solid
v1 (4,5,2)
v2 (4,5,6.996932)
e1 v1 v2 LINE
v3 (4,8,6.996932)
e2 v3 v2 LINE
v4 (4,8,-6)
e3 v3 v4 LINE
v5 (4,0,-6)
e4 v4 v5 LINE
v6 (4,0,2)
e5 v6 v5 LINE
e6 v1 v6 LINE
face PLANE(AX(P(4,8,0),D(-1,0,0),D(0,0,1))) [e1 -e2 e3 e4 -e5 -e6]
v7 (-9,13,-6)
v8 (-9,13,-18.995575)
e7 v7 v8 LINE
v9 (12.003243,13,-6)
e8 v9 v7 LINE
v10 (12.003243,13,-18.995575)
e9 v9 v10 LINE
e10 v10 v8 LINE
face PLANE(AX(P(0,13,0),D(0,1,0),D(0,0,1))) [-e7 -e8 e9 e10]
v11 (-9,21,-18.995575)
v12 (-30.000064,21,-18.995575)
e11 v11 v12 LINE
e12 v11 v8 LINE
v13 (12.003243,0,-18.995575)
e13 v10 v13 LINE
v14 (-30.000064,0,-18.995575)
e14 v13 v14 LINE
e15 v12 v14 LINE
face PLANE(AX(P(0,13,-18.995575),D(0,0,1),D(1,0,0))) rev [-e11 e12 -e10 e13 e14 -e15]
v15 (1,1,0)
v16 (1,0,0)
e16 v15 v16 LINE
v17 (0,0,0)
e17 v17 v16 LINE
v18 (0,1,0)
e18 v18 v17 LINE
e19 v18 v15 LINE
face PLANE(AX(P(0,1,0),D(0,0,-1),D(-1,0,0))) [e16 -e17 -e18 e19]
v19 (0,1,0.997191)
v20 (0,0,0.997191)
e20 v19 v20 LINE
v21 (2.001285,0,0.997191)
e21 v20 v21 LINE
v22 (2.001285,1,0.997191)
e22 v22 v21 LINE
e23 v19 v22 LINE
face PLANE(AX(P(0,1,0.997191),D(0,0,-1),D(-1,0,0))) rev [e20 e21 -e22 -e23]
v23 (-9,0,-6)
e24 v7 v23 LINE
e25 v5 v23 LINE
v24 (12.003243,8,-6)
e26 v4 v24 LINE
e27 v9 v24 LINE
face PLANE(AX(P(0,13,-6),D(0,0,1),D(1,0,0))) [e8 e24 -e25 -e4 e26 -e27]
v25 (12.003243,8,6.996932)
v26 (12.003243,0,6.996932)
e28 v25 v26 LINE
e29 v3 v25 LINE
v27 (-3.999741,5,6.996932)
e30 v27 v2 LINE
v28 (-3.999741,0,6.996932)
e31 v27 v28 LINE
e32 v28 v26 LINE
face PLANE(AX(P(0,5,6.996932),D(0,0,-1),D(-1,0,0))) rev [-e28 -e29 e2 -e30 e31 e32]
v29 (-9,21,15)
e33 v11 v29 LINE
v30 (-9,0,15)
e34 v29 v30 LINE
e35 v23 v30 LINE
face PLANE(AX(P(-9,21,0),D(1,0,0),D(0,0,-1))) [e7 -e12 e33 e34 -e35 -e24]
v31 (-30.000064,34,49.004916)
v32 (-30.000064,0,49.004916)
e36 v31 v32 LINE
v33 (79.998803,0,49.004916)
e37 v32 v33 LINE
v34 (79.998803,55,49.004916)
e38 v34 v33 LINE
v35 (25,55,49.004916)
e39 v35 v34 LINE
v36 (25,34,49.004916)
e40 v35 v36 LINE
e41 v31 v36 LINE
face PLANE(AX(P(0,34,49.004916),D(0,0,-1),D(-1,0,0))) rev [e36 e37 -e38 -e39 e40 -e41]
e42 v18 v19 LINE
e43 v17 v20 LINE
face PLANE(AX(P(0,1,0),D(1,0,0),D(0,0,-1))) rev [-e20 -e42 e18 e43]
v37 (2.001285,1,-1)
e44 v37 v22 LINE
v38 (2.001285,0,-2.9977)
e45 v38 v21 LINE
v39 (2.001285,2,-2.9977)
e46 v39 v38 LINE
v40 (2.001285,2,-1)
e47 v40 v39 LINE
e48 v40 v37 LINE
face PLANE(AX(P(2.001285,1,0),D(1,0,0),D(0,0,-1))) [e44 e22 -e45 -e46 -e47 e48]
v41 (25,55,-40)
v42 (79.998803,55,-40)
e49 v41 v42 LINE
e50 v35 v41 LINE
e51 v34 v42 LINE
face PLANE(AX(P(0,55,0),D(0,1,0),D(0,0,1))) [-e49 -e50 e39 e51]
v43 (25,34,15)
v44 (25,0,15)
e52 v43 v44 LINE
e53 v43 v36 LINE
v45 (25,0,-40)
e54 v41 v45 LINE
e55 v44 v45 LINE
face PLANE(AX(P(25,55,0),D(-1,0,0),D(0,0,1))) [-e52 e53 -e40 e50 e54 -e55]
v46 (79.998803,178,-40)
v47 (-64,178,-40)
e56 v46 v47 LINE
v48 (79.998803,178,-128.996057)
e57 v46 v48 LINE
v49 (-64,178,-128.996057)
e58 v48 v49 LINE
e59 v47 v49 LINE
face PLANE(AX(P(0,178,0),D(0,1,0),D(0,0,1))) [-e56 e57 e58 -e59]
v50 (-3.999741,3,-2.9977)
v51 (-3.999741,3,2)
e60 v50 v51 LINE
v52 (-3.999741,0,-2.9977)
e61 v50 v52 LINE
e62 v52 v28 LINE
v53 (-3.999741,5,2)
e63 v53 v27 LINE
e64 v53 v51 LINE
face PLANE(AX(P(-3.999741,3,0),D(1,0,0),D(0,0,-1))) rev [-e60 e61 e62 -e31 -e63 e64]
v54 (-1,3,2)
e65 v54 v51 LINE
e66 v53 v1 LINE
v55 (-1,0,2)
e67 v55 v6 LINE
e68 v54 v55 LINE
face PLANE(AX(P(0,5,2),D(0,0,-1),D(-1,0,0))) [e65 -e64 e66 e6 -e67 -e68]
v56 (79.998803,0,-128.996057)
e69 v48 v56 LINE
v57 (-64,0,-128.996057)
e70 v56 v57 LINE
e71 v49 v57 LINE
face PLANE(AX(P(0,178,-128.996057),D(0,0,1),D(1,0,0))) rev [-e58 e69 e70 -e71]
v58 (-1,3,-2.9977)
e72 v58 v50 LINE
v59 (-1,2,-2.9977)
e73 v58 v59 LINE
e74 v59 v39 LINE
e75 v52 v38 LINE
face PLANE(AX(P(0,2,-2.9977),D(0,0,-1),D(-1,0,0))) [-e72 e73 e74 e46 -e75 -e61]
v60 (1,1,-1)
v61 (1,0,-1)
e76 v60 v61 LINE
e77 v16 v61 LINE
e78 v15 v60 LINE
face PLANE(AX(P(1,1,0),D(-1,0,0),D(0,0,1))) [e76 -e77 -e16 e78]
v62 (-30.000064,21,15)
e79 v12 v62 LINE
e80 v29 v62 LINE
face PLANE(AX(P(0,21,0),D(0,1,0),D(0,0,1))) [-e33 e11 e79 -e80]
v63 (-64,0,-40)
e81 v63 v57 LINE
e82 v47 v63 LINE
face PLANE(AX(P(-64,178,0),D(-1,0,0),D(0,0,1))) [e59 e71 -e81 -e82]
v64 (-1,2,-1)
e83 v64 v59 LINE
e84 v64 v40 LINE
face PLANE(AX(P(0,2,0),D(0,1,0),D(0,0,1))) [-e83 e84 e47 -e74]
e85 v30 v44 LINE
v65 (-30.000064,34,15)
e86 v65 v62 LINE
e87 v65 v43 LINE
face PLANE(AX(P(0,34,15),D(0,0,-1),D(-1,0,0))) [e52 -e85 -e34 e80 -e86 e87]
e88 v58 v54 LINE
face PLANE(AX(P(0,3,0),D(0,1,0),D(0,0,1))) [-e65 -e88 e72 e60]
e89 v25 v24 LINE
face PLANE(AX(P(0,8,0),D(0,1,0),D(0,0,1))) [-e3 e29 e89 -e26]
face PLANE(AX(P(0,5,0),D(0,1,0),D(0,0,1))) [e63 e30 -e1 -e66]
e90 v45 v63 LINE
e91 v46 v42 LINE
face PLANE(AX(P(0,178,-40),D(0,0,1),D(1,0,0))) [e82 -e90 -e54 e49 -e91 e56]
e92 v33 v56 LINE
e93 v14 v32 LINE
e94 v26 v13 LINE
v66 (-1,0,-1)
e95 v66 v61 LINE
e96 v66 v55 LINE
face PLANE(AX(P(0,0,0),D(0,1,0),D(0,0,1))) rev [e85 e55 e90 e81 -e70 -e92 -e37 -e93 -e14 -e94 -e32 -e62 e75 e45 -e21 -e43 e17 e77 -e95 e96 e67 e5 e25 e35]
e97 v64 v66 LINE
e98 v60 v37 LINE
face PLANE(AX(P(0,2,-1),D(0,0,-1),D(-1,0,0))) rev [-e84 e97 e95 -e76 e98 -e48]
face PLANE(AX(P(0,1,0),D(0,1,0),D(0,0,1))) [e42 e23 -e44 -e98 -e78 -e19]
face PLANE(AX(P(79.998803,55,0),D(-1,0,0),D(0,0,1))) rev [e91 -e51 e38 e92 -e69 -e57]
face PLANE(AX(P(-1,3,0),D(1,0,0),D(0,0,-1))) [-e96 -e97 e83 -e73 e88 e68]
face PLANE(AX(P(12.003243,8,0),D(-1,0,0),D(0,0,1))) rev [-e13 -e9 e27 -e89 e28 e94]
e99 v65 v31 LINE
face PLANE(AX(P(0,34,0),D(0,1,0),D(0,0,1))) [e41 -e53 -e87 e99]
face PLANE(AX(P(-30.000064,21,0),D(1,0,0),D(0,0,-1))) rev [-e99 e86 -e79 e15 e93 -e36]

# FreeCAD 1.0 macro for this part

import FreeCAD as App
import Part
import Sketcher

V = App.Vector


def add_polygon(sketch, points):
    """Adds a closed chain of lines whose ends are joined by coincident constraints."""
    first, n = sketch.GeometryCount, len(points)
    for a, b in zip(points, points[1:] + points[:1]):
        sketch.addGeometry(Part.LineSegment(App.Vector(*a, 0), App.Vector(*b, 0)), False)
    for i in range(n):
        sketch.addConstraint(Sketcher.Constraint("Coincident", first + i, 2, first + (i + 1) % n, 1))

doc = App.newDocument("Part")
body = doc.addObject("PartDesign::Body", "Body")

sketch1 = body.newObject("Sketcher::SketchObject", "Sketch")
sketch1.AttachmentSupport = (doc.getObject("XZ_Plane"), [""])
sketch1.MapMode = "FlatFace"
add_polygon(sketch1, [(1, 0), (0, 0), (0, 1), (2, 1), (2, -1), (1, -1)])
sketch1.addConstraint(Sketcher.Constraint("Horizontal", 0))
sketch1.addConstraint(Sketcher.Constraint("Vertical", 1))
sketch1.addConstraint(Sketcher.Constraint("Horizontal", 2))
sketch1.addConstraint(Sketcher.Constraint("Vertical", 3))
sketch1.addConstraint(Sketcher.Constraint("Horizontal", 4))
sketch1.addConstraint(Sketcher.Constraint("Vertical", 5))
sketch1.addConstraint(Sketcher.Constraint("Coincident", 0, 2, -1, 1))
sketch1.addConstraint(Sketcher.Constraint("Equal", 0, 5))
sketch1.addConstraint(Sketcher.Constraint("DistanceX", 0, 2, 0, 1, 1.0))
sketch1.addConstraint(Sketcher.Constraint("DistanceY", 1, 1, 1, 2, 0.997191))
sketch1.addConstraint(Sketcher.Constraint("DistanceX", 2, 1, 2, 2, 2.001285))
pad1 = body.newObject("PartDesign::Pad", "Pad")
pad1.Profile = sketch1
pad1.Length = 1
pad1.Reversed = True

sketch2 = body.newObject("Sketcher::SketchObject", "Sketch001")
sketch2.AttachmentSupport = (doc.getObject("XZ_Plane"), [""])
sketch2.MapMode = "FlatFace"
add_polygon(sketch2, [(2, -1), (2, -3), (-1, -3), (-1, -1)])
sketch2.addConstraint(Sketcher.Constraint("Vertical", 0))
sketch2.addConstraint(Sketcher.Constraint("Horizontal", 1))
sketch2.addConstraint(Sketcher.Constraint("Vertical", 2))
sketch2.addConstraint(Sketcher.Constraint("Horizontal", 3))
sketch2.addConstraint(Sketcher.Constraint("DistanceX", 1, 2, -1, 1, 1.0))
sketch2.addConstraint(Sketcher.Constraint("DistanceY", 2, 2, -1, 1, 1.0))
sketch2.addConstraint(Sketcher.Constraint("DistanceY", 0, 2, 0, 1, 1.9977))
sketch2.addConstraint(Sketcher.Constraint("DistanceX", 1, 2, 1, 1, 3.001285))
pad2 = body.newObject("PartDesign::Pad", "Pad001")
pad2.Profile = sketch2
pad2.Length = 2
pad2.Reversed = True

sketch3 = body.newObject("Sketcher::SketchObject", "Sketch002")
sketch3.AttachmentSupport = (doc.getObject("XZ_Plane"), [""])
sketch3.MapMode = "FlatFace"
add_polygon(sketch3, [(-1, -3), (-4, -3), (-4, 2), (-1, 2)])
sketch3.addConstraint(Sketcher.Constraint("Horizontal", 0))
sketch3.addConstraint(Sketcher.Constraint("Vertical", 1))
sketch3.addConstraint(Sketcher.Constraint("Horizontal", 2))
sketch3.addConstraint(Sketcher.Constraint("Vertical", 3))
sketch3.addConstraint(Sketcher.Constraint("DistanceY", -1, 1, 1, 2, 2.0))
sketch3.addConstraint(Sketcher.Constraint("DistanceX", 2, 2, -1, 1, 1.0))
sketch3.addConstraint(Sketcher.Constraint("DistanceY", 1, 1, 1, 2, 4.9977))
sketch3.addConstraint(Sketcher.Constraint("DistanceX", 0, 2, 0, 1, 2.999741))
pad3 = body.newObject("PartDesign::Pad", "Pad002")
pad3.Profile = sketch3
pad3.Length = 3
pad3.Reversed = True

sketch4 = body.newObject("Sketcher::SketchObject", "Sketch003")
sketch4.AttachmentSupport = (doc.getObject("XZ_Plane"), [""])
sketch4.MapMode = "FlatFace"
add_polygon(sketch4, [(4, 7), (4, 2), (-4, 2), (-4, 7)])
sketch4.addConstraint(Sketcher.Constraint("Vertical", 0))
sketch4.addConstraint(Sketcher.Constraint("Horizontal", 1))
sketch4.addConstraint(Sketcher.Constraint("Vertical", 2))
sketch4.addConstraint(Sketcher.Constraint("Horizontal", 3))
sketch4.addConstraint(Sketcher.Constraint("DistanceX", -1, 1, 0, 2, 4.0))
sketch4.addConstraint(Sketcher.Constraint("DistanceY", -1, 1, 0, 2, 2.0))
sketch4.addConstraint(Sketcher.Constraint("DistanceX", 1, 2, 1, 1, 7.999741))
sketch4.addConstraint(Sketcher.Constraint("DistanceY", 0, 2, 0, 1, 4.996932))
pad4 = body.newObject("PartDesign::Pad", "Pad003")
pad4.Profile = sketch4
pad4.Length = 5
pad4.Reversed = True

sketch5 = body.newObject("Sketcher::SketchObject", "Sketch004")
sketch5.AttachmentSupport = (doc.getObject("XZ_Plane"), [""])
sketch5.MapMode = "FlatFace"
add_polygon(sketch5, [(4, 7), (12, 7), (12, -6), (4, -6)])
sketch5.addConstraint(Sketcher.Constraint("Horizontal", 0))
sketch5.addConstraint(Sketcher.Constraint("Vertical", 1))
sketch5.addConstraint(Sketcher.Constraint("Horizontal", 2))
sketch5.addConstraint(Sketcher.Constraint("Vertical", 3))
sketch5.addConstraint(Sketcher.Constraint("DistanceY", 1, 2, -1, 1, 6.0))
sketch5.addConstraint(Sketcher.Constraint("DistanceX", -1, 1, 2, 2, 4.0))
sketch5.addConstraint(Sketcher.Constraint("DistanceX", 0, 1, 0, 2, 8.003243))
sketch5.addConstraint(Sketcher.Constraint("DistanceY", 1, 2, 1, 1, 12.996932))
pad5 = body.newObject("PartDesign::Pad", "Pad004")
pad5.Profile = sketch5
pad5.Length = 8
pad5.Reversed = True

sketch6 = body.newObject("Sketcher::SketchObject", "Sketch005")
sketch6.AttachmentSupport = (doc.getObject("XZ_Plane"), [""])
sketch6.MapMode = "FlatFace"
add_polygon(sketch6, [(-9, -19), (-9, -6), (12, -6), (12, -19)])
sketch6.addConstraint(Sketcher.Constraint("Vertical", 0))
sketch6.addConstraint(Sketcher.Constraint("Horizontal", 1))
sketch6.addConstraint(Sketcher.Constraint("Vertical", 2))
sketch6.addConstraint(Sketcher.Constraint("Horizontal", 3))
sketch6.addConstraint(Sketcher.Constraint("DistanceX", 0, 2, -1, 1, 9.0))
sketch6.addConstraint(Sketcher.Constraint("DistanceY", 0, 2, -1, 1, 6.0))
sketch6.addConstraint(Sketcher.Constraint("DistanceX", 1, 1, 1, 2, 21.003243))
sketch6.addConstraint(Sketcher.Constraint("DistanceY", 0, 1, 0, 2, 12.995575))
pad6 = body.newObject("PartDesign::Pad", "Pad005")
pad6.Profile = sketch6
pad6.Length = 13
pad6.Reversed = True

sketch7 = body.newObject("Sketcher::SketchObject", "Sketch006")
sketch7.AttachmentSupport = (doc.getObject("XZ_Plane"), [""])
sketch7.MapMode = "FlatFace"
add_polygon(sketch7, [(-9, -19), (-30, -19), (-30, 15), (-9, 15)])
sketch7.addConstraint(Sketcher.Constraint("Horizontal", 0))
sketch7.addConstraint(Sketcher.Constraint("Vertical", 1))
sketch7.addConstraint(Sketcher.Constraint("Horizontal", 2))
sketch7.addConstraint(Sketcher.Constraint("Vertical", 3))
sketch7.addConstraint(Sketcher.Constraint("DistanceY", -1, 1, 1, 2, 15.0))
sketch7.addConstraint(Sketcher.Constraint("DistanceX", 2, 2, -1, 1, 9.0))
sketch7.addConstraint(Sketcher.Constraint("DistanceX", 0, 2, 0, 1, 21.000064))
sketch7.addConstraint(Sketcher.Constraint("DistanceY", 1, 1, 1, 2, 33.995575))
pad7 = body.newObject("PartDesign::Pad", "Pad006")
pad7.Profile = sketch7
pad7.Length = 21
pad7.Reversed = True

sketch8 = body.newObject("Sketcher::SketchObject", "Sketch007")
sketch8.AttachmentSupport = (doc.getObject("XZ_Plane"), [""])
sketch8.MapMode = "FlatFace"
add_polygon(sketch8, [(25, 49), (25, 15), (-30, 15), (-30, 49)])
sketch8.addConstraint(Sketcher.Constraint("Vertical", 0))
sketch8.addConstraint(Sketcher.Constraint("Horizontal", 1))
sketch8.addConstraint(Sketcher.Constraint("Vertical", 2))
sketch8.addConstraint(Sketcher.Constraint("Horizontal", 3))
sketch8.addConstraint(Sketcher.Constraint("DistanceX", -1, 1, 0, 2, 25.0))
sketch8.addConstraint(Sketcher.Constraint("DistanceY", -1, 1, 0, 2, 15.0))
sketch8.addConstraint(Sketcher.Constraint("DistanceX", 1, 2, 1, 1, 55.000064))
sketch8.addConstraint(Sketcher.Constraint("DistanceY", 0, 2, 0, 1, 34.004916))
pad8 = body.newObject("PartDesign::Pad", "Pad007")
pad8.Profile = sketch8
pad8.Length = 34
pad8.Reversed = True

sketch9 = body.newObject("Sketcher::SketchObject", "Sketch008")
sketch9.AttachmentSupport = (doc.getObject("XZ_Plane"), [""])
sketch9.MapMode = "FlatFace"
add_polygon(sketch9, [(25, 49), (80, 49), (80, -40), (25, -40)])
sketch9.addConstraint(Sketcher.Constraint("Horizontal", 0))
sketch9.addConstraint(Sketcher.Constraint("Vertical", 1))
sketch9.addConstraint(Sketcher.Constraint("Horizontal", 2))
sketch9.addConstraint(Sketcher.Constraint("Vertical", 3))
sketch9.addConstraint(Sketcher.Constraint("DistanceY", 1, 2, -1, 1, 40.0))
sketch9.addConstraint(Sketcher.Constraint("DistanceX", -1, 1, 2, 2, 25.0))
sketch9.addConstraint(Sketcher.Constraint("DistanceX", 0, 1, 0, 2, 54.998803))
sketch9.addConstraint(Sketcher.Constraint("DistanceY", 1, 2, 1, 1, 89.004916))
pad9 = body.newObject("PartDesign::Pad", "Pad008")
pad9.Profile = sketch9
pad9.Length = 55
pad9.Reversed = True

sketch10 = body.newObject("Sketcher::SketchObject", "Sketch009")
sketch10.AttachmentSupport = (doc.getObject("XZ_Plane"), [""])
sketch10.MapMode = "FlatFace"
add_polygon(sketch10, [(-64, -129), (-64, -40), (80, -40), (80, -129)])
sketch10.addConstraint(Sketcher.Constraint("Vertical", 0))
sketch10.addConstraint(Sketcher.Constraint("Horizontal", 1))
sketch10.addConstraint(Sketcher.Constraint("Vertical", 2))
sketch10.addConstraint(Sketcher.Constraint("Horizontal", 3))
sketch10.addConstraint(Sketcher.Constraint("DistanceX", 0, 2, -1, 1, 64.0))
sketch10.addConstraint(Sketcher.Constraint("DistanceY", 0, 2, -1, 1, 40.0))
sketch10.addConstraint(Sketcher.Constraint("DistanceX", 1, 1, 1, 2, 143.998803))
sketch10.addConstraint(Sketcher.Constraint("DistanceY", 0, 1, 0, 2, 88.996057))
pad10 = body.newObject("PartDesign::Pad", "Pad009")
pad10.Profile = sketch10
pad10.Length = 178
pad10.Reversed = True

doc.recompute()
